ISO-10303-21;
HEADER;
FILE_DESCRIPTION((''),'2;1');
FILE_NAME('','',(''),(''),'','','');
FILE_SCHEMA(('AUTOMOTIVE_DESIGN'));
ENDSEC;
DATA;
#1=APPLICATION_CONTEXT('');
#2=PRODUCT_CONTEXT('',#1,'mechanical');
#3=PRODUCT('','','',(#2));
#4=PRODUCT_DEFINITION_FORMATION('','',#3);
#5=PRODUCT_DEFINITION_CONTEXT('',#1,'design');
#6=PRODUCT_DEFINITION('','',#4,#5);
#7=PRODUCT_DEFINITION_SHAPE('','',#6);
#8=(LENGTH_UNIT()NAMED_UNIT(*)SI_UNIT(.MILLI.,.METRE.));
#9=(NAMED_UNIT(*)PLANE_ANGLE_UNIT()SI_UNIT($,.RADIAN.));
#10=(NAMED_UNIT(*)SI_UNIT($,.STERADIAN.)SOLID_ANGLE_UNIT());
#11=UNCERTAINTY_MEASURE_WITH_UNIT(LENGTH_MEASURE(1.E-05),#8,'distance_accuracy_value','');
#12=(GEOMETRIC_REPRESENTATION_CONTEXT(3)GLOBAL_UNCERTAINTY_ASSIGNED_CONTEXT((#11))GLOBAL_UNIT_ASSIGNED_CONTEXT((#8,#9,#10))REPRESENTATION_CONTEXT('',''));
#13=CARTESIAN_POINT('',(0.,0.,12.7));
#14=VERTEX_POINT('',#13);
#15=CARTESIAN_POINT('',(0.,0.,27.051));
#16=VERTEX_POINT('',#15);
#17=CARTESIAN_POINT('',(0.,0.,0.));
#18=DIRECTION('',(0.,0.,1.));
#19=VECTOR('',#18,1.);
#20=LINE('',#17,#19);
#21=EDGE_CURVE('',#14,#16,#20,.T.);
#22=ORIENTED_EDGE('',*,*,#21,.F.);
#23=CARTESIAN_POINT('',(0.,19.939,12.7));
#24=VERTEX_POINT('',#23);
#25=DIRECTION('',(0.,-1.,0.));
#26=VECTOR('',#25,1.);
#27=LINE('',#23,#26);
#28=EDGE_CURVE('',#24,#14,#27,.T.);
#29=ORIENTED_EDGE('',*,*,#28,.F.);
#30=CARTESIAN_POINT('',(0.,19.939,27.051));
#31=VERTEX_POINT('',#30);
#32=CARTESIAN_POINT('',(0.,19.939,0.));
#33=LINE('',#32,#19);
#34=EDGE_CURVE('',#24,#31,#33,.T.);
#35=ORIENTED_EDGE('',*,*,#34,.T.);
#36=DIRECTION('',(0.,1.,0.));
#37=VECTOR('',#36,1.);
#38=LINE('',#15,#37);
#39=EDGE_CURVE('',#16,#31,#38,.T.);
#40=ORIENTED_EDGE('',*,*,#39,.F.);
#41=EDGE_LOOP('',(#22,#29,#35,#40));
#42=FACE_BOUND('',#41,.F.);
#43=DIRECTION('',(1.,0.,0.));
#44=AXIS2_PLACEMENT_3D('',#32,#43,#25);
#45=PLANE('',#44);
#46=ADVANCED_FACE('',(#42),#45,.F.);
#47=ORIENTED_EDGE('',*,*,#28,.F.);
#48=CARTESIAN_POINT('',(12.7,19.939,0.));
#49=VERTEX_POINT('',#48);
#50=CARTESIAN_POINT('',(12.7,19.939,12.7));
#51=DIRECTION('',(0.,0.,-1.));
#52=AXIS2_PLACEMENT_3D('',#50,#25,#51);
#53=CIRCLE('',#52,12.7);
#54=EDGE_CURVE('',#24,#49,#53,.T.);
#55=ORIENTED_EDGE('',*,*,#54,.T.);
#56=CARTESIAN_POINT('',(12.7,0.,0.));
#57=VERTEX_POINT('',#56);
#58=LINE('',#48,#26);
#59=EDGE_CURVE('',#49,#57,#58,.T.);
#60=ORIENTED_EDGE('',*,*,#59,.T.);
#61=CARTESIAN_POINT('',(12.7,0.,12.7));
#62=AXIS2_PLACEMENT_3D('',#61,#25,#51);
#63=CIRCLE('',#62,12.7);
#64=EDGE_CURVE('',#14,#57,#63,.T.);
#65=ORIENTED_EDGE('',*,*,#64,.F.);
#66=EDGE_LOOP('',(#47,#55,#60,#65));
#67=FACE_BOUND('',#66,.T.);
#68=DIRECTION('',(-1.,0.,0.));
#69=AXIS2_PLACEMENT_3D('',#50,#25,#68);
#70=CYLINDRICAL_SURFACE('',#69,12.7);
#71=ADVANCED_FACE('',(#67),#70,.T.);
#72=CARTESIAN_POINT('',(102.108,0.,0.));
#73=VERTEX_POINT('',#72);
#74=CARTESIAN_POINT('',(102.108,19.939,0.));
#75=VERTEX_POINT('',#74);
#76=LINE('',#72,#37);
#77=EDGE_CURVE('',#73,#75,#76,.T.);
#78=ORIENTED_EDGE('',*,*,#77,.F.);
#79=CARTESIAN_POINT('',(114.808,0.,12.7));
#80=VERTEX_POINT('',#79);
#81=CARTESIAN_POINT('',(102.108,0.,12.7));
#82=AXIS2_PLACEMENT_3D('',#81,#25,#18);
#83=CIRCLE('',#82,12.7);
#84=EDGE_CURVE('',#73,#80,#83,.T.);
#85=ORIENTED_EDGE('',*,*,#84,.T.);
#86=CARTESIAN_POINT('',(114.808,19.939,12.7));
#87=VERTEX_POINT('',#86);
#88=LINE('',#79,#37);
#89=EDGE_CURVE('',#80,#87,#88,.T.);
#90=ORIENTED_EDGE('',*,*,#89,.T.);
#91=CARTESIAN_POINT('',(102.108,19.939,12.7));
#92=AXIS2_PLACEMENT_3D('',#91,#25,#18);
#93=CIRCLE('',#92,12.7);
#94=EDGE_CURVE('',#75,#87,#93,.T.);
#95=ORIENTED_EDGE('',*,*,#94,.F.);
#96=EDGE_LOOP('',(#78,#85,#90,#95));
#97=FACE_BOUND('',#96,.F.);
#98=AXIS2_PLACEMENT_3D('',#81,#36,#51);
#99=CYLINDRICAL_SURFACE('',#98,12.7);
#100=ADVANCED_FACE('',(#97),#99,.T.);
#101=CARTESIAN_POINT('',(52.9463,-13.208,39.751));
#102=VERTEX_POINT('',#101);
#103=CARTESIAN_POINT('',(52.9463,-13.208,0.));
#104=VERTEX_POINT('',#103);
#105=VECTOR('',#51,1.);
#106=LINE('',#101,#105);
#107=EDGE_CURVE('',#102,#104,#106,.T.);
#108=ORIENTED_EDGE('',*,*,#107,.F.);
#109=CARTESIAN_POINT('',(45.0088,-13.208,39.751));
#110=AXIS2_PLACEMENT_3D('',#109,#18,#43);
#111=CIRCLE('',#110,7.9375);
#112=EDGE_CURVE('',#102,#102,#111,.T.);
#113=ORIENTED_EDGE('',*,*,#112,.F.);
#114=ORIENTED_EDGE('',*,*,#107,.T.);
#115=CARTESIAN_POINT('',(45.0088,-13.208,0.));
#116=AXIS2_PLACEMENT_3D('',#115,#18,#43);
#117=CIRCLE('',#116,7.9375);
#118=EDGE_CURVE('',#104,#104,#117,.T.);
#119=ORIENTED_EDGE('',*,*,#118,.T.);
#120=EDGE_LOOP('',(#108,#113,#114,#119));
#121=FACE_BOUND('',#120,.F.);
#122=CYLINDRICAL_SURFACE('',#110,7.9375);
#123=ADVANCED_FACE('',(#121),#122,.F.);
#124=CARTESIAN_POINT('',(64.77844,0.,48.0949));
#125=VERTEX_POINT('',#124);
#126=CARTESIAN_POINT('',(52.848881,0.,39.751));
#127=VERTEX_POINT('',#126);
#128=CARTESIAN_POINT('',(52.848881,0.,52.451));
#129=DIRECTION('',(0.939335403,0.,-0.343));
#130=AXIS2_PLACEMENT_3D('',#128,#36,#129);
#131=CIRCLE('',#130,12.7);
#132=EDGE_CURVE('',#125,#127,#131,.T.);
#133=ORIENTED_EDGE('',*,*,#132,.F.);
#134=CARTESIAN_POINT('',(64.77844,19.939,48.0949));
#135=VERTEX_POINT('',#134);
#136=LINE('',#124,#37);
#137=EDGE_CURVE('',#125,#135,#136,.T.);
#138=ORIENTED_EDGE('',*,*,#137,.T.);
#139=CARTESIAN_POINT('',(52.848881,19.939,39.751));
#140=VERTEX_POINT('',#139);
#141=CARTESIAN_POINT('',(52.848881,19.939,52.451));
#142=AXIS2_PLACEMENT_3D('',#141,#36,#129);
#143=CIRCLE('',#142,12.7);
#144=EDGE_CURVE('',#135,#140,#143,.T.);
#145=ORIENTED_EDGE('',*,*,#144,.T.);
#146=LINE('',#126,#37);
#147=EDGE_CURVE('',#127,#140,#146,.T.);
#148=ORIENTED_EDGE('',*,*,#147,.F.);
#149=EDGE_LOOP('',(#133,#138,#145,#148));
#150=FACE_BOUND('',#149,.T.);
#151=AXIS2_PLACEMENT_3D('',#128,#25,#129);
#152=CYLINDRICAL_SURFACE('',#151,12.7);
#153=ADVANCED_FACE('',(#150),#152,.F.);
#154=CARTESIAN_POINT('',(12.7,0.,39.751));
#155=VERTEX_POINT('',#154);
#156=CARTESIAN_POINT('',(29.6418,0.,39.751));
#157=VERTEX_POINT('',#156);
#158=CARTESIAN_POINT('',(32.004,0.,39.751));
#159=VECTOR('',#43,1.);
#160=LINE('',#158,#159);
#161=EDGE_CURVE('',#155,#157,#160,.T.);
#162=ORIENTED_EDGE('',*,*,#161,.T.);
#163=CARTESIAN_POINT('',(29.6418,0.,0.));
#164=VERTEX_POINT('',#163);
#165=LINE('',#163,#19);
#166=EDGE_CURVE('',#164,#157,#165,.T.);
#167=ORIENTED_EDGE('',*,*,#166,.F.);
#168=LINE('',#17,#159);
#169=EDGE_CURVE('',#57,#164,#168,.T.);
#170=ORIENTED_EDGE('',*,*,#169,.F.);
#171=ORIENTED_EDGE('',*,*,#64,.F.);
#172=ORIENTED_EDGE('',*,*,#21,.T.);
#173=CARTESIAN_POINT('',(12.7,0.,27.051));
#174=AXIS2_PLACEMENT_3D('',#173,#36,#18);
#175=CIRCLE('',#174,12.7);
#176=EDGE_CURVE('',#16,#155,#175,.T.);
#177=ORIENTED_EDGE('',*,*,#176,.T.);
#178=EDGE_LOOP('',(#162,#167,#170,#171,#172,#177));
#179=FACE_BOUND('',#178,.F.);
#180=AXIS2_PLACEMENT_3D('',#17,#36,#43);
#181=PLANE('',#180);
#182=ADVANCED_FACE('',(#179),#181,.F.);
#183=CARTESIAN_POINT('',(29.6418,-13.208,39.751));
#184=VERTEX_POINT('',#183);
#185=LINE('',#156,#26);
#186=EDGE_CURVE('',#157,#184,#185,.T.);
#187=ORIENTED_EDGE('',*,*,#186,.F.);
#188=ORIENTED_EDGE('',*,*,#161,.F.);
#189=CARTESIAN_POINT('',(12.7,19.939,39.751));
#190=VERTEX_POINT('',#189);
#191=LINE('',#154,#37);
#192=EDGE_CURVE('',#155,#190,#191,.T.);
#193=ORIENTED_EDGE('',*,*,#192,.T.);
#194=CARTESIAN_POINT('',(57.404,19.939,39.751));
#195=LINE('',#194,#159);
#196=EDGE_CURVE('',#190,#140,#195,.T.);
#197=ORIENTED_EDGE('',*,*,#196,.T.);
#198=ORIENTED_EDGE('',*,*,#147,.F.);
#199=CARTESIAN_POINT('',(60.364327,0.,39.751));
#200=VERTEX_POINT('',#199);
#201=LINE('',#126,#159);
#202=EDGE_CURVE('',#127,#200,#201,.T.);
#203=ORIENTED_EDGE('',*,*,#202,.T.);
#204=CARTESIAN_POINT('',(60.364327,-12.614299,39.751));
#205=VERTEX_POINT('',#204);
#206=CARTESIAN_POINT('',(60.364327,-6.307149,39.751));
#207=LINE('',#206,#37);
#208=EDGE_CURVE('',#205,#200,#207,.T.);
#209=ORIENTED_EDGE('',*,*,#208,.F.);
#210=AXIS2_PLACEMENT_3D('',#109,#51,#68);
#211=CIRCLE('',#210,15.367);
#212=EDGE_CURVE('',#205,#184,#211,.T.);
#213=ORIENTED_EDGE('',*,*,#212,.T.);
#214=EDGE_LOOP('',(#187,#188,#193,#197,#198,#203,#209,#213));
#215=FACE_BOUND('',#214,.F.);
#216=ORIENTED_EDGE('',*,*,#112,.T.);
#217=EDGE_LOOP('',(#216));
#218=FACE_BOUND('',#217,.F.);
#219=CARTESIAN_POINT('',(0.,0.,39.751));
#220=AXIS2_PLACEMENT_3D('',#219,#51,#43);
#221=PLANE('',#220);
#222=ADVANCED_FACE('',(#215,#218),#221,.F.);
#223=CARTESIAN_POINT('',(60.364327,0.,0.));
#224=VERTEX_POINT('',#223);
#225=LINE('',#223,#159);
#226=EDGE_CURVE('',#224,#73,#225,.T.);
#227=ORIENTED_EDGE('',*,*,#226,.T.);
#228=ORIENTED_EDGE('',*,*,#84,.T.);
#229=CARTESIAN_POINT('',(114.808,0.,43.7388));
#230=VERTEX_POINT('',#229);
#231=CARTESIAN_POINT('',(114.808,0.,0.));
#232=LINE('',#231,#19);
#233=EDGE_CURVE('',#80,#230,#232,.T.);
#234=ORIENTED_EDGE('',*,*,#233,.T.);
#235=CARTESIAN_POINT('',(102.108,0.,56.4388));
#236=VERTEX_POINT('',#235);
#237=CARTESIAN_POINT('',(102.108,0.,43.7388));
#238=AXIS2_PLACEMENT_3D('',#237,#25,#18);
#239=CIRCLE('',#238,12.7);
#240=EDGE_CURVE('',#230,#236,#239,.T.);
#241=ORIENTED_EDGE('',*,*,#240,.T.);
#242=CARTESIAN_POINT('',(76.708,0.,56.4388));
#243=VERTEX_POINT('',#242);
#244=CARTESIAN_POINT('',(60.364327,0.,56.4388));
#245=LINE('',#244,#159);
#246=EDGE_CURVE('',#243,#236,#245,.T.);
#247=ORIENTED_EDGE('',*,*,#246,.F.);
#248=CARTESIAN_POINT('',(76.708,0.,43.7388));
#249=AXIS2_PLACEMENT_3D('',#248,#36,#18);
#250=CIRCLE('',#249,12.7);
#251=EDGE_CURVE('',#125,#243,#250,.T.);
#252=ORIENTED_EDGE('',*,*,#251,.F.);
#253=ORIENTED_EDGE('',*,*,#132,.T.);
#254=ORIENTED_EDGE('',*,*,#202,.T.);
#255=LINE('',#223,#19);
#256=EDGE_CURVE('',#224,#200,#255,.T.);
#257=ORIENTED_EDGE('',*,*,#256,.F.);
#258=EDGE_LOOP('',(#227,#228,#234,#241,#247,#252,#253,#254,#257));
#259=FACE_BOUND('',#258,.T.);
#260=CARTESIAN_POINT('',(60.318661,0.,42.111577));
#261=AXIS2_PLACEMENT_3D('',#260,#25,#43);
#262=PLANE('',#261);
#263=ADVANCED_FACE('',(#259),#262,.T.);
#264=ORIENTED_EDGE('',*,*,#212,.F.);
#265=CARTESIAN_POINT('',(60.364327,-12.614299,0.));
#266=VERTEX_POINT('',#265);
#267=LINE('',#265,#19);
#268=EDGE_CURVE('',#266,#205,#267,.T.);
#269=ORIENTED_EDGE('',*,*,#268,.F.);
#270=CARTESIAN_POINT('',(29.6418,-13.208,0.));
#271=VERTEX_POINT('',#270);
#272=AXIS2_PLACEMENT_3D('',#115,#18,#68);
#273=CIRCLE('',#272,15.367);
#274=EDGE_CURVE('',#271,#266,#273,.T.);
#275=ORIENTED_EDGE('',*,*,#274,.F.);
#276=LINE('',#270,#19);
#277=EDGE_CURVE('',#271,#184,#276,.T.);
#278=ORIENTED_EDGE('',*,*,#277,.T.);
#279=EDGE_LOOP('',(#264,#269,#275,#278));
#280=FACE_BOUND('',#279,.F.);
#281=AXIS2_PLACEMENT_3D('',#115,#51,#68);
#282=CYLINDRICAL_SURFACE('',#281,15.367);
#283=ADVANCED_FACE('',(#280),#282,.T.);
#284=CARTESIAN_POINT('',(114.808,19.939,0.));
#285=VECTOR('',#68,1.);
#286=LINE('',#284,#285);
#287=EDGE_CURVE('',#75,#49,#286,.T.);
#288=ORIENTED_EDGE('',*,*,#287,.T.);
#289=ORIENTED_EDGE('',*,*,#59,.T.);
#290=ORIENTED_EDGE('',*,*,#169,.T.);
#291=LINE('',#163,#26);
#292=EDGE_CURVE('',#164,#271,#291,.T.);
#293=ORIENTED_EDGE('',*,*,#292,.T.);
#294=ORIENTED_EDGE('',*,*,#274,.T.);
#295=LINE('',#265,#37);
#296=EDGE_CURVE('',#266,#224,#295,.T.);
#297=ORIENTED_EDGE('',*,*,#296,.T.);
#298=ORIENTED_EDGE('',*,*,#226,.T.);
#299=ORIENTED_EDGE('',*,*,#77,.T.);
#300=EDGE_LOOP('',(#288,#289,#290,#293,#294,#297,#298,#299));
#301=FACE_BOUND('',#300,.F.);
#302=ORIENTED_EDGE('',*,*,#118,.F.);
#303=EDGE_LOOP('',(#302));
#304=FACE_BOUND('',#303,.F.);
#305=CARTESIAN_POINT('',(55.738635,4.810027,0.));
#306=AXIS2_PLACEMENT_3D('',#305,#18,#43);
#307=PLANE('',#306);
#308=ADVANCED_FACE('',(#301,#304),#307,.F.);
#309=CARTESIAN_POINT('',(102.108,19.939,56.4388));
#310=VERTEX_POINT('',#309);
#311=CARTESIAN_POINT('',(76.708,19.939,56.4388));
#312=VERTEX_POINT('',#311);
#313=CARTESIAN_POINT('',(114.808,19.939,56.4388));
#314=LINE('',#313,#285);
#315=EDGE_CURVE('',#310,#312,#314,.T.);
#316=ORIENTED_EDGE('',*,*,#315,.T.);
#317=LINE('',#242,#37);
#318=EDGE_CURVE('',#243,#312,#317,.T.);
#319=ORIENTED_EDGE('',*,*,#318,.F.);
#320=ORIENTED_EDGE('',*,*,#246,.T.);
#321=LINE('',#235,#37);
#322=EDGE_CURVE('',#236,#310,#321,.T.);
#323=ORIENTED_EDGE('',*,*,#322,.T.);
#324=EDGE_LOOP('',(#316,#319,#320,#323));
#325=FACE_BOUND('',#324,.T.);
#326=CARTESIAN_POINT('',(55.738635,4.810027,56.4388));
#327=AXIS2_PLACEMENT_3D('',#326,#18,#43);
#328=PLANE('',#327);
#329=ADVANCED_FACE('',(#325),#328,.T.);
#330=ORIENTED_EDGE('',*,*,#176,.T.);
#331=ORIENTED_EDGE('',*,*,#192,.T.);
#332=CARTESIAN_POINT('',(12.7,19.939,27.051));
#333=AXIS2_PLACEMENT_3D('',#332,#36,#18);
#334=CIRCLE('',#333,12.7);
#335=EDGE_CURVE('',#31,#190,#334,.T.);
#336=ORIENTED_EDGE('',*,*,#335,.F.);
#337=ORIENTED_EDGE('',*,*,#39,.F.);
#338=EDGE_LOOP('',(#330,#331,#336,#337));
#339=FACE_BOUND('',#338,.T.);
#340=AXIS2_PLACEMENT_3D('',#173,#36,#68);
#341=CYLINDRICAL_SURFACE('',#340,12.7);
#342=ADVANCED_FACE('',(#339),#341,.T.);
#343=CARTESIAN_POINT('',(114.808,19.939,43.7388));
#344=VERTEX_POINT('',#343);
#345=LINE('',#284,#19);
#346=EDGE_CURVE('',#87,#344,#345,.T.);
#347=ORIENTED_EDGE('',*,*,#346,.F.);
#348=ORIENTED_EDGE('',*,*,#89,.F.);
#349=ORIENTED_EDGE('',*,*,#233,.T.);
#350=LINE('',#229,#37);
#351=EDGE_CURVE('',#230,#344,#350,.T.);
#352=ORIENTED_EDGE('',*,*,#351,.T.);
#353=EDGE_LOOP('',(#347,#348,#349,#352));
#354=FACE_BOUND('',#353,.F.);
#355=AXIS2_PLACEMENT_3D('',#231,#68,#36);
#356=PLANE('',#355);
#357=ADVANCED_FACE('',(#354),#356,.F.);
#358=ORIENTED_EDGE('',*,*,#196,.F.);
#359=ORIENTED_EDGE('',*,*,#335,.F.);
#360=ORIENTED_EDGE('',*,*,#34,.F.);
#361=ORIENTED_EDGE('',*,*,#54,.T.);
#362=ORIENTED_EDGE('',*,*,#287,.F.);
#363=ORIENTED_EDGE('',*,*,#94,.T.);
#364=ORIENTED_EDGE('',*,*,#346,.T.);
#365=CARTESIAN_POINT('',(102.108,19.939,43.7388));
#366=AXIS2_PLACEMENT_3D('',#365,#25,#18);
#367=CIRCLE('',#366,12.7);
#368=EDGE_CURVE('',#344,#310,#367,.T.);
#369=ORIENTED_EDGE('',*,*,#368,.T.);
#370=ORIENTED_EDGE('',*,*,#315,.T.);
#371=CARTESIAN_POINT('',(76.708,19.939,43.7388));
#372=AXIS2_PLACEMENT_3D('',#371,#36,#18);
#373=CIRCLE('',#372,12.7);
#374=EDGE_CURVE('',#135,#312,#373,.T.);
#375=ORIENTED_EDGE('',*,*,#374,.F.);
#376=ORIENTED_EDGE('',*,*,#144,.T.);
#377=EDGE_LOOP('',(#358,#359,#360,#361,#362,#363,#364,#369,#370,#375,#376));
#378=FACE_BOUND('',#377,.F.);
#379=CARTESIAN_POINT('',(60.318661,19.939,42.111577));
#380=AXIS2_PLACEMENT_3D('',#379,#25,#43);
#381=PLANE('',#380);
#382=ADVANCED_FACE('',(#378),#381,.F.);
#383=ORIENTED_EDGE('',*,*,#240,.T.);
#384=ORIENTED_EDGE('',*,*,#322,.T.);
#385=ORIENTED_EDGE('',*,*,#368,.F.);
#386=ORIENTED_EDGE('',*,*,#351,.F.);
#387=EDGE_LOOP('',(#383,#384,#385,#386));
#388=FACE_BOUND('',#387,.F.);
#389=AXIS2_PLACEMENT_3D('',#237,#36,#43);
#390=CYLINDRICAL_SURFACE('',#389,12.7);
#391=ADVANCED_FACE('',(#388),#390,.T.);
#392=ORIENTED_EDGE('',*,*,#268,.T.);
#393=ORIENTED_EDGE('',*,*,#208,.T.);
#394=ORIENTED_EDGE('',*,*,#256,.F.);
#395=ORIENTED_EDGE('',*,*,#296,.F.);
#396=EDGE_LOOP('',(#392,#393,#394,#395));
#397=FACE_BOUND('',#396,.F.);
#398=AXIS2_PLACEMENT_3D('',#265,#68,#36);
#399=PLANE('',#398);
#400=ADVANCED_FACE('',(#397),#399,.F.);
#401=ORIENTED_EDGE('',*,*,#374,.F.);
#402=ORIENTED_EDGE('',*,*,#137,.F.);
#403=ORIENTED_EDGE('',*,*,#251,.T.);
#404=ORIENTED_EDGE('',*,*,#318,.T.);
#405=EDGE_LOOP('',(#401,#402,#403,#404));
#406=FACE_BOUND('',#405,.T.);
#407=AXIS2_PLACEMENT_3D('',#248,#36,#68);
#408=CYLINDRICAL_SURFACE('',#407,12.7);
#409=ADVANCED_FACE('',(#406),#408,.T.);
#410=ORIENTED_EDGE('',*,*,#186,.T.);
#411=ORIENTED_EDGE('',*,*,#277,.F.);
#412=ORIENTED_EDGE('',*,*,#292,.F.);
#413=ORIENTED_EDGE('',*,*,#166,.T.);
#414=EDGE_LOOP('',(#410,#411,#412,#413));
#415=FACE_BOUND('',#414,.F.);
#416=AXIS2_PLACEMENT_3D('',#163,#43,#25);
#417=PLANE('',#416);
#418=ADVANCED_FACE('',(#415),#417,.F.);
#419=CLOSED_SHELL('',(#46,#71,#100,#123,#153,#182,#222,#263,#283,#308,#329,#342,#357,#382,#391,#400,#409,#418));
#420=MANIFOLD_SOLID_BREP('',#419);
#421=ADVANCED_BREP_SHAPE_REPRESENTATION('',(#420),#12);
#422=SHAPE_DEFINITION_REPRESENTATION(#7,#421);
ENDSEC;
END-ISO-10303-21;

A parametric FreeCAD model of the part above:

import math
import FreeCAD as App
import Part
import Sketcher
Q = App.Units.Quantity


def edges_at(feature, points):
    """Names of the edges that pass closest to the given points."""
    edges = feature.Shape.Edges
    near = lambda p: min(range(len(edges)), key=lambda i: edges[i].distToShape(Part.Vertex(*p))[0])
    return sorted({f"Edge{near(p) + 1}" for p in points})


def add_polygon(sketch, points):
    """Adds a closed chain of lines whose ends are joined by coincident constraints."""
    first, n = sketch.GeometryCount, len(points)
    for a, b in zip(points, points[1:] + points[:1]):
        sketch.addGeometry(Part.LineSegment(App.Vector(*a, 0), App.Vector(*b, 0)), False)
    for i in range(n):
        sketch.addConstraint(Sketcher.Constraint("Coincident", first + i, 2, first + (i + 1) % n, 1))

doc = App.newDocument("Part")
body = doc.addObject("PartDesign::Body", "Body")

sketch1 = body.newObject("Sketcher::SketchObject", "Sketch")
sketch1.AttachmentSupport = (doc.getObject("XY_Plane"), [""])
sketch1.MapMode = "FlatFace"
sketch1.addGeometry([
    Part.LineSegment(App.Vector(0, 20, 0), App.Vector(0, 0, 0)),
    Part.LineSegment(App.Vector(0, 0, 0), App.Vector(30, 0, 0)),
    Part.LineSegment(App.Vector(30, 0, 0), App.Vector(30, -13, 0)),
    Part.ArcOfCircle(Part.Circle(App.Vector(45, -13, 0), App.Vector(0, 0, 1), 15), math.radians(180), math.radians(362)),
    Part.LineSegment(App.Vector(60, -13, 0), App.Vector(60, 0, 0)),
    Part.LineSegment(App.Vector(60, 0, 0), App.Vector(115, 0, 0)),
    Part.LineSegment(App.Vector(115, 0, 0), App.Vector(115, 20, 0)),
    Part.LineSegment(App.Vector(115, 20, 0), App.Vector(0, 20, 0)),
], False)
sketch1.addConstraint([
    Sketcher.Constraint("Coincident", 0, 2, 1, 1),
    Sketcher.Constraint("Coincident", 1, 2, 2, 1),
    Sketcher.Constraint("Tangent", 2, 2, 3, 1),
    Sketcher.Constraint("Coincident", 3, 2, 4, 1),
    Sketcher.Constraint("Coincident", 4, 2, 5, 1),
    Sketcher.Constraint("Coincident", 5, 2, 6, 1),
    Sketcher.Constraint("Coincident", 6, 2, 7, 1),
    Sketcher.Constraint("Coincident", 7, 2, 0, 1),
    Sketcher.Constraint("Vertical", 0),
    Sketcher.Constraint("Horizontal", 1),
    Sketcher.Constraint("Vertical", 2),
    Sketcher.Constraint("Vertical", 4),
    Sketcher.Constraint("Horizontal", 5),
    Sketcher.Constraint("Vertical", 6),
    Sketcher.Constraint("Horizontal", 7),
    Sketcher.Constraint("Coincident", 0, 2, -1, 1),
    Sketcher.Constraint("PointOnObject", 4, 2, -1),
    Sketcher.Constraint("Radius", 3, Q("0.605 in")),
    Sketcher.Constraint("DistanceX", 7, 2, 7, 1, Q("4.52 in")),
    Sketcher.Constraint("DistanceY", 2, 2, 2, 1, Q("0.52 in")),
    Sketcher.Constraint("DistanceX", 1, 1, 1, 2, Q("1.167 in")),
    Sketcher.Constraint("DistanceY", 0, 2, 0, 1, Q("0.785 in")),
    Sketcher.Constraint("DistanceY", 4, 1, 4, 2, 12.614299),
])
pad1 = body.newObject("PartDesign::Pad", "Pad")
pad1.Profile = sketch1
pad1.Length = Q("2.222 in")

sketch2 = body.newObject("Sketcher::SketchObject", "Sketch001")
sketch2.AttachmentSupport = (doc.getObject("XZ_Plane"), [""])
sketch2.MapMode = "FlatFace"
add_polygon(sketch2, [(0, 56), (0, 40), (64, 40), (64, 56)])
sketch2.addConstraint([
    Sketcher.Constraint("Vertical", 0),
    Sketcher.Constraint("Horizontal", 1),
    Sketcher.Constraint("Vertical", 2),
    Sketcher.Constraint("Horizontal", 3),
    Sketcher.Constraint("PointOnObject", 0, 2, -2),
    Sketcher.Constraint("DistanceX", 1, 1, 1, 2, Q("2.52 in")),
    Sketcher.Constraint("DistanceY", 0, 2, 0, 1, Q("0.657 in")),
    Sketcher.Constraint("DistanceY", -1, 1, 0, 2, Q("1.565 in")),
])
pocket1 = body.newObject("PartDesign::Pocket", "Pocket")
pocket1.Profile = sketch2
pocket1.Type = "ThroughAll"
pocket1.Midplane = True
doc.recompute()

fillet = body.newObject("PartDesign::Fillet", "Fillet")
fillet.Base = (pocket1, edges_at(pocket1, [
    (114.808, 9.97, 56.439),
    (114.808, 9.97, 0),
    (64.008, 9.97, 56.439),
    (0, 9.97, 39.751),
    (0, 9.97, 0),
]))
fillet.Radius = Q("0.5 in")

sketch3 = body.newObject("Sketcher::SketchObject", "Sketch002")
sketch3.AttachmentSupport = (doc.getObject("XZ_Plane"), [""])
sketch3.MapMode = "FlatFace"
sketch3.addGeometry([
    Part.LineSegment(App.Vector(64, 39.8, 0), App.Vector(64, 43.7, 0)),
    Part.ArcOfCircle(Part.Circle(App.Vector(76.7, 43.7, 0), App.Vector(0, 0, 1), 12.7), math.radians(160), math.radians(180)),
    Part.ArcOfCircle(Part.Circle(App.Vector(52.8, 52.5, 0), App.Vector(0, 0, 1), 12.7), math.radians(-90), math.radians(-20)),
    Part.LineSegment(App.Vector(52.8, 39.8, 0), App.Vector(64, 39.8, 0)),
], False)
sketch3.addConstraint([
    Sketcher.Constraint("Tangent", 0, 2, 1, 2),
    Sketcher.Constraint("Tangent", 1, 1, 2, 2),
    Sketcher.Constraint("Tangent", 2, 1, 3, 1),
    Sketcher.Constraint("Coincident", 3, 2, 0, 1),
    Sketcher.Constraint("Vertical", 0),
    Sketcher.Constraint("Horizontal", 3),
    Sketcher.Constraint("Equal", 1, 2),
    Sketcher.Constraint("Radius", 1, Q("0.5 in")),
    Sketcher.Constraint("DistanceY", 0, 1, 0, 2, Q("0.157 in")),
    Sketcher.Constraint("DistanceX", -1, 1, 1, 3, Q("3.02 in")),
    Sketcher.Constraint("DistanceY", -1, 1, 1, 3, Q("1.722 in")),
])
pad2 = body.newObject("PartDesign::Pad", "Pad001")
pad2.Profile = sketch3
pad2.Length = Q("0.785 in")
pad2.Reversed = True

sketch4 = body.newObject("Sketcher::SketchObject", "Sketch003")
sketch4.AttachmentSupport = (doc.getObject("XY_Plane"), [""])
sketch4.MapMode = "FlatFace"
sketch4.AttachmentOffset = App.Placement(App.Vector(0, 0, 1.565 * 25.4), App.Rotation())
sketch4.addGeometry(Part.Circle(App.Vector(45, -13, 0), App.Vector(0, 0, 1), 8), False)
sketch4.addConstraint([
    Sketcher.Constraint("Diameter", 0, Q("0.625 in")),
    Sketcher.Constraint("DistanceY", 0, 3, -1, 1, Q("0.52 in")),
    Sketcher.Constraint("DistanceX", -1, 1, 0, 3, Q("1.772 in")),
])
pocket2 = body.newObject("PartDesign::Pocket", "Pocket001")
pocket2.Profile = sketch4
pocket2.Type = "ThroughAll"

doc.recompute()
